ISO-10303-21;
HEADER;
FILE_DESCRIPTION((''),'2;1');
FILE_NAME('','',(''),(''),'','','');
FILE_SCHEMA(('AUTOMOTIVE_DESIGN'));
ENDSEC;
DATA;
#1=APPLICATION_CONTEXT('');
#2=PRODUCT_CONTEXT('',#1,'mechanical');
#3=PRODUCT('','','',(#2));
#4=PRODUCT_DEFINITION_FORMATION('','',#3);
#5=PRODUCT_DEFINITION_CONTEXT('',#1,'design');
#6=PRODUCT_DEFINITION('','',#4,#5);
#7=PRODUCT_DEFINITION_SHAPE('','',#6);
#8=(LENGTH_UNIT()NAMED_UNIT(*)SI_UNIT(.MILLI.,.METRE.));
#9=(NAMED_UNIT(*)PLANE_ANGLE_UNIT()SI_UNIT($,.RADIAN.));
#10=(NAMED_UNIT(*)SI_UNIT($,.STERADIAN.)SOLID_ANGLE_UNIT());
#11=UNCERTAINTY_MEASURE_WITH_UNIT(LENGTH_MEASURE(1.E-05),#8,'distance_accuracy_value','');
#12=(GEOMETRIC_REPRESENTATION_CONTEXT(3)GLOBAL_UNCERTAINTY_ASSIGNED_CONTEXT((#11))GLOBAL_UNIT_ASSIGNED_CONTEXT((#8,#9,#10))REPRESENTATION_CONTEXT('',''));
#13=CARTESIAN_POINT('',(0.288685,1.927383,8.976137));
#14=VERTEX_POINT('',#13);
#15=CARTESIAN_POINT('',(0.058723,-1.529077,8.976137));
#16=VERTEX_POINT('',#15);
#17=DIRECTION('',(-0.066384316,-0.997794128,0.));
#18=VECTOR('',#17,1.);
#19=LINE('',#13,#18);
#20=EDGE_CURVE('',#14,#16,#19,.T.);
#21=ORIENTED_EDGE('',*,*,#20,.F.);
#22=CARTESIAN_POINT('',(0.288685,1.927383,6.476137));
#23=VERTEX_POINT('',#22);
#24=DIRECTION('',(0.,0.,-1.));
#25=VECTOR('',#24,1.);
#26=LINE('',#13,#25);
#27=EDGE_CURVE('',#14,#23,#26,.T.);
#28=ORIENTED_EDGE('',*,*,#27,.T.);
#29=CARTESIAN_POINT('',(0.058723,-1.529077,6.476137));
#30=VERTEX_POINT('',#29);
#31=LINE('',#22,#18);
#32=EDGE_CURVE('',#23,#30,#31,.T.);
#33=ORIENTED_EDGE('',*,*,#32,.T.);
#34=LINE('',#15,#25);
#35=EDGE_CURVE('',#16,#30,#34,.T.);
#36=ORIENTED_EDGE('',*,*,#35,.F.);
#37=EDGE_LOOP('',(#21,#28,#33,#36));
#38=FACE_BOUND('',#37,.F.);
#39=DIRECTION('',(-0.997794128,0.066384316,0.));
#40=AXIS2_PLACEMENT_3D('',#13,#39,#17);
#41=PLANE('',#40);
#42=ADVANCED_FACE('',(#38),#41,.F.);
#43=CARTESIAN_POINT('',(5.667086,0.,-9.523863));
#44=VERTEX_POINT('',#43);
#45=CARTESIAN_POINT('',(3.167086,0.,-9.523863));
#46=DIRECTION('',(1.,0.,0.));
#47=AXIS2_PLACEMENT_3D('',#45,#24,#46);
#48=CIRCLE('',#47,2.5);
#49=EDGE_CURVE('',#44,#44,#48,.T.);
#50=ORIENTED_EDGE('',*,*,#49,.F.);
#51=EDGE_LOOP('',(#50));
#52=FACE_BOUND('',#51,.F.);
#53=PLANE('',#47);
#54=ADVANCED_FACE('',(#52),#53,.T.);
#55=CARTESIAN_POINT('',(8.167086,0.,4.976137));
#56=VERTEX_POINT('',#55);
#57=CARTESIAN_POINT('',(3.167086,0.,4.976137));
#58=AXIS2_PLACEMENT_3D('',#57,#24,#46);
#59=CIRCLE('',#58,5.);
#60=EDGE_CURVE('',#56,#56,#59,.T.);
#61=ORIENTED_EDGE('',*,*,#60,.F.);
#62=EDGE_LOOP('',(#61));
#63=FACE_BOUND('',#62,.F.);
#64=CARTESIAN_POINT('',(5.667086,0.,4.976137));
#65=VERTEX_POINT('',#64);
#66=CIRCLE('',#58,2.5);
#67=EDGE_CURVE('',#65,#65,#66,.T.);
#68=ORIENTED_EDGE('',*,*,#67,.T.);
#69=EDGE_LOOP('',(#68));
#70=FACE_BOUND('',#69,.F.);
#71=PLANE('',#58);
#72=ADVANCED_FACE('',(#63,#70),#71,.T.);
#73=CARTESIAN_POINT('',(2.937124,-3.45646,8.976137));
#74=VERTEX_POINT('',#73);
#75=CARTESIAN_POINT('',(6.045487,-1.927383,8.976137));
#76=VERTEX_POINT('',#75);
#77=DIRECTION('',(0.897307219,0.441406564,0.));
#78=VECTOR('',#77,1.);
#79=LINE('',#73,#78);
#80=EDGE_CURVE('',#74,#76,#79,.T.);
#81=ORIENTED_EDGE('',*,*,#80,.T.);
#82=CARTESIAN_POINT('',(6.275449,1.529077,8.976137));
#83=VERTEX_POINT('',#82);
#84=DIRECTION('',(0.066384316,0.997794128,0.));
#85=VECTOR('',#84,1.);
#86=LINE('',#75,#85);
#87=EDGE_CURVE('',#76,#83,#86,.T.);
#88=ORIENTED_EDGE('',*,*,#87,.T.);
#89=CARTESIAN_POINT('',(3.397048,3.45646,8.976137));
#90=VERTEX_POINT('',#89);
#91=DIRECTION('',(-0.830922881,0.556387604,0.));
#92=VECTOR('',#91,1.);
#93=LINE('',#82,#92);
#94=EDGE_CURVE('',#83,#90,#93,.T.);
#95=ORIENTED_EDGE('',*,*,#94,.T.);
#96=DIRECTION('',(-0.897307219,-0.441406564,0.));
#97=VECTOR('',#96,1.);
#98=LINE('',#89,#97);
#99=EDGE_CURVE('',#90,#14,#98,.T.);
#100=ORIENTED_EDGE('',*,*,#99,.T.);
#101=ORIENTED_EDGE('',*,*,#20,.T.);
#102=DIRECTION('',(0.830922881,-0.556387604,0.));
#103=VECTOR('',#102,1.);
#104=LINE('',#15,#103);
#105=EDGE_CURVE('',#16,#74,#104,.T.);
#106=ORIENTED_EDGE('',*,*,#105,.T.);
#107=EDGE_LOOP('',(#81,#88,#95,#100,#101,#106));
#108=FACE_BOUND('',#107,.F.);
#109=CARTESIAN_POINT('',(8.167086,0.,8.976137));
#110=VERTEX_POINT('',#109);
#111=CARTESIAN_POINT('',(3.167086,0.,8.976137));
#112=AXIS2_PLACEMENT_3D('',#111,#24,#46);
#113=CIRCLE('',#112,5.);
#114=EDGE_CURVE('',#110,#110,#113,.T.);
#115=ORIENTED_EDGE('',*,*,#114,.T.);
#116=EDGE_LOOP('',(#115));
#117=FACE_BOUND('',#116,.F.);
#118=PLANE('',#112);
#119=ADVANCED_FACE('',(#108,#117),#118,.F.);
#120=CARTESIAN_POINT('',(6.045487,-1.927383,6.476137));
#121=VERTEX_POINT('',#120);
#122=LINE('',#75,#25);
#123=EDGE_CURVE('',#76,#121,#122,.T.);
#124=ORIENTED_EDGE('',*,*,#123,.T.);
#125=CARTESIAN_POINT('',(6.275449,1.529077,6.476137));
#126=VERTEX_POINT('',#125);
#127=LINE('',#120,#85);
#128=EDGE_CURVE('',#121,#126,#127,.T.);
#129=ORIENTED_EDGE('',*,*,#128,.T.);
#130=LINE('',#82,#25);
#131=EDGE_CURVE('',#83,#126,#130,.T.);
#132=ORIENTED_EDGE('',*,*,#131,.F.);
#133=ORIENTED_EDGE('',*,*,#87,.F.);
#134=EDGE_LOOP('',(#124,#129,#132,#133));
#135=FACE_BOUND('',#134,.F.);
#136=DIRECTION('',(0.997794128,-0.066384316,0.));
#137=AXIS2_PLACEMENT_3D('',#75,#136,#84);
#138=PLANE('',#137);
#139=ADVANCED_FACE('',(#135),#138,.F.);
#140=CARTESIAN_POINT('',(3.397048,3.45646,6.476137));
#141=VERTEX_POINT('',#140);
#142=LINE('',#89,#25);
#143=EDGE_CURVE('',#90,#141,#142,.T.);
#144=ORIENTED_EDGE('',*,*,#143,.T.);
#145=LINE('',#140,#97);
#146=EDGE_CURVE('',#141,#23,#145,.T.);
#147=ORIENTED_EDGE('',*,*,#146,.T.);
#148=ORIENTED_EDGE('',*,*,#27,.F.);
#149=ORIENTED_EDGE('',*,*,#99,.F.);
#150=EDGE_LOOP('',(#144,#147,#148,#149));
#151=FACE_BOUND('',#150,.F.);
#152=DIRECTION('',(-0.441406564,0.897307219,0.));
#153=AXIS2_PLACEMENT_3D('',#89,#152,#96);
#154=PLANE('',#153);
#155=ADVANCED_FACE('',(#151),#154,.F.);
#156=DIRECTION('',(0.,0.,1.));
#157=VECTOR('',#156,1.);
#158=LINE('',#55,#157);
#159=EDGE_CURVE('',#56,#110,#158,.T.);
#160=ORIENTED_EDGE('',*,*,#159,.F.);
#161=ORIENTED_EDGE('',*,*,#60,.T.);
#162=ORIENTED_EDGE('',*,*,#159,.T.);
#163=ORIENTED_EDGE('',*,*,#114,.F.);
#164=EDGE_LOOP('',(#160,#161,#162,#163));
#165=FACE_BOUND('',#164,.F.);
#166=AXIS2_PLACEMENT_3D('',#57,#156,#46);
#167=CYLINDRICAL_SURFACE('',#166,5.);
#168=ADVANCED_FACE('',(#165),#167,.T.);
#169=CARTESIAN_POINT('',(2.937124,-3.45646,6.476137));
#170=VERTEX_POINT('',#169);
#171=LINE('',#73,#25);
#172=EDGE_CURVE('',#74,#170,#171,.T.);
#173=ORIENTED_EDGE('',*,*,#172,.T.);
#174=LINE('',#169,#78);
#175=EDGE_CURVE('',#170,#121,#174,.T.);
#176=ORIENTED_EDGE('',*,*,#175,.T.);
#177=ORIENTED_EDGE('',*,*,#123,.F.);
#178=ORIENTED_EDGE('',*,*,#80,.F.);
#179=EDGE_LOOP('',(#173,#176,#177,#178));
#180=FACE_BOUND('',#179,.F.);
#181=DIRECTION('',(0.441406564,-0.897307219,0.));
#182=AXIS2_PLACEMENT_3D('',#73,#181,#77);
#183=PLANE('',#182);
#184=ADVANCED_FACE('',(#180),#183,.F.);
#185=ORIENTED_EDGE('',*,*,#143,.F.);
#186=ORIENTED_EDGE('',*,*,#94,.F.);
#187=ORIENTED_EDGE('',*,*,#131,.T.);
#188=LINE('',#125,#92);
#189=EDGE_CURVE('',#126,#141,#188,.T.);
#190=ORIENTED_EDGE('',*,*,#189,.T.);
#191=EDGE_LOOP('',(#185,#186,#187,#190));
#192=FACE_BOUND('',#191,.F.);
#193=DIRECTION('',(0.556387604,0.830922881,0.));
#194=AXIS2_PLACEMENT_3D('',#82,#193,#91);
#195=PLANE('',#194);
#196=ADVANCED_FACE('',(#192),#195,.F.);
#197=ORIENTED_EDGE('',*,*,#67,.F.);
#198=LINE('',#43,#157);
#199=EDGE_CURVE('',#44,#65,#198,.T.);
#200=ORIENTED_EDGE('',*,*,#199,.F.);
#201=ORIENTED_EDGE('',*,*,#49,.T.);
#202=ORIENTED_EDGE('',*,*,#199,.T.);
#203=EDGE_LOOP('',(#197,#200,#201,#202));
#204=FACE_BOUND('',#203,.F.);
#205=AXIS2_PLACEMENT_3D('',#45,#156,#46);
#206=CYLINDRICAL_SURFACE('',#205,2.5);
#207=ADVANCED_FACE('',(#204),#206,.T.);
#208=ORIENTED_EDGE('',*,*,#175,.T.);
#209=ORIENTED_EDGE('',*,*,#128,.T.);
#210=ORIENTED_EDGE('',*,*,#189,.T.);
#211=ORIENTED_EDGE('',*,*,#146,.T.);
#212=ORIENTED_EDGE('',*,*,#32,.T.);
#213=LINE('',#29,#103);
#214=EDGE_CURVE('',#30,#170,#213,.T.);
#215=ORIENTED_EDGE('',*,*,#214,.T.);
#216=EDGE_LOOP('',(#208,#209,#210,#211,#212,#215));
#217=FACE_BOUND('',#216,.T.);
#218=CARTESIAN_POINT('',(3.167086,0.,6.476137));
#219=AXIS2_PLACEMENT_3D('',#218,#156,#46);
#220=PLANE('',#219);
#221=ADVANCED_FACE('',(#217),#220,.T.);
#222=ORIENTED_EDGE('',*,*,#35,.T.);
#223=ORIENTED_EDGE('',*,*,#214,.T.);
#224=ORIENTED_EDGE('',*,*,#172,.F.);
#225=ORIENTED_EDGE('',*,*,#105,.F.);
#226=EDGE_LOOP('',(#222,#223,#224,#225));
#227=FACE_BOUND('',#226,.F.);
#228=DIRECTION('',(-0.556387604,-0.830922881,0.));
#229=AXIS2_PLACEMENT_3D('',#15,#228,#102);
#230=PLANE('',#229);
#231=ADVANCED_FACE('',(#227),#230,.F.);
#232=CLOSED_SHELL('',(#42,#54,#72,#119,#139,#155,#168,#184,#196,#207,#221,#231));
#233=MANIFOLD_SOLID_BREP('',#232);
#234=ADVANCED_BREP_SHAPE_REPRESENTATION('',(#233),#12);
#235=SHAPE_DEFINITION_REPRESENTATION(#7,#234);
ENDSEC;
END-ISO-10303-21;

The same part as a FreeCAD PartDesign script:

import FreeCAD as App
import Part
import Sketcher
from FreeCAD import Vector


def add_polygon(sketch, points):
    """Adds a closed chain of lines whose ends are joined by coincident constraints."""
    first, n = sketch.GeometryCount, len(points)
    for a, b in zip(points, points[1:] + points[:1]):
        sketch.addGeometry(Part.LineSegment(App.Vector(*a, 0), App.Vector(*b, 0)), False)
    for i in range(n):
        sketch.addConstraint(Sketcher.Constraint("Coincident", first + i, 2, first + (i + 1) % n, 1))

doc = App.newDocument("Part")
params = doc.addObject("Spreadsheet::Sheet", "Params")
for row, (alias, value) in enumerate([
    ("sketch1_width", "5 mm"),
    ("sketch1_height", "4 mm"),
    ("sketch1_height2", "18.5 mm"),
    ("revolution_angle", "360 deg"),
    ("pocket1_length", "2.5 mm"),
], start=1):
    params.set(f"A{row}", alias)
    params.set(f"B{row}", "=" + value)
    params.setAlias(f"B{row}", alias)

body = doc.addObject("PartDesign::Body", "Body")

# Sketch on XZ plane
sketch1 = doc.addObject("Sketcher::SketchObject", "Sketch")
body.addObject(sketch1)
sketch1.AttachmentSupport = (doc.XZ_Plane, [""])
sketch1.MapMode = "FlatFace"
add_polygon(sketch1, [(3.2, 9), (3.2, -9.5), (5.7, -9.5), (5.7, 5), (8.2, 5), (8.2, 9)])  # lines 0-5
sketch1.addGeometry(Part.LineSegment(Vector(3.2, 9, 0), Vector(3.2, -9.5, 0)), True)  # axis
sketch1.addConstraint(Sketcher.Constraint("Vertical", 0))
sketch1.addConstraint(Sketcher.Constraint("Horizontal", 1))
sketch1.addConstraint(Sketcher.Constraint("Vertical", 2))
sketch1.addConstraint(Sketcher.Constraint("Horizontal", 3))
sketch1.addConstraint(Sketcher.Constraint("Vertical", 4))
sketch1.addConstraint(Sketcher.Constraint("Horizontal", 5))
sketch1.addConstraint(Sketcher.Constraint("Vertical", 6))
sketch1.addConstraint(Sketcher.Constraint("Coincident", 6, 1, 5, 2))
sketch1.addConstraint(Sketcher.Constraint("Horizontal", 1, 2, 6, 2))
sketch1.addConstraint(Sketcher.Constraint("Equal", 1, 3))
sketch1.addConstraint(Sketcher.Constraint("DistanceX", 5, 2, 5, 1, 5.0))
sketch1.addConstraint(Sketcher.Constraint("DistanceY", 4, 1, 4, 2, 4.0))
sketch1.addConstraint(Sketcher.Constraint("DistanceY", 0, 2, 0, 1, 18.5))
sketch1.addConstraint(Sketcher.Constraint("DistanceX", -1, 1, 0, 2, 3.167086))
sketch1.addConstraint(Sketcher.Constraint("DistanceY", 0, 2, -1, 1, 9.523863))
sketch1.setExpression("Constraints[16]", "Params.sketch1_width")
sketch1.setExpression("Constraints[17]", "Params.sketch1_height")
sketch1.setExpression("Constraints[18]", "Params.sketch1_height2")
revolution = doc.addObject("PartDesign::Revolution", "Revolution")
body.addObject(revolution)
revolution.Profile = sketch1
revolution.ReferenceAxis = (sketch1, ["Axis0"])
revolution.setExpression("Angle", "Params.revolution_angle")

# Sketch on XY plane
sketch2 = doc.addObject("Sketcher::SketchObject", "Sketch001")
body.addObject(sketch2)
sketch2.AttachmentSupport = (doc.XY_Plane, [""])
sketch2.MapMode = "FlatFace"
sketch2.AttachmentOffset = App.Placement(Vector(0, 0, 8.976137), App.Rotation())
add_polygon(sketch2, [(2.9, -3.5), (6, -1.9), (6.3, 1.5), (3.4, 3.5), (0.3, 1.9), (0.1, -1.5)])  # lines 0-5
sketch2.addConstraint(Sketcher.Constraint("Parallel", 0, 3))
sketch2.addConstraint(Sketcher.Constraint("Parallel", 1, 4))
sketch2.addConstraint(Sketcher.Constraint("Parallel", 2, 5))
sketch2.addConstraint(Sketcher.Constraint("Equal", 0, 1))
sketch2.addConstraint(Sketcher.Constraint("Equal", 1, 2))
sketch2.addConstraint(Sketcher.Constraint("Equal", 2, 3))
sketch2.addConstraint(Sketcher.Constraint("Distance", 0, 3.464101))
sketch2.addConstraint(Sketcher.Constraint("DistanceX", 2, 2, 1, 2, 2.878401))
sketch2.addConstraint(Sketcher.Constraint("DistanceX", 3, 2, 0, 2, 5.756802))
sketch2.addConstraint(Sketcher.Constraint("DistanceX", -1, 1, 1, 2, 6.275449))
sketch2.addConstraint(Sketcher.Constraint("DistanceY", -1, 1, 2, 2, 3.45646))
sketch2.addConstraint(Sketcher.Constraint("DistanceY", 5, 2, -1, 1, 3.45646))
pocket1 = doc.addObject("PartDesign::Pocket", "Pocket")
body.addObject(pocket1)
pocket1.Profile = sketch2
pocket1.setExpression("Length", "Params.pocket1_length")

doc.recompute()
